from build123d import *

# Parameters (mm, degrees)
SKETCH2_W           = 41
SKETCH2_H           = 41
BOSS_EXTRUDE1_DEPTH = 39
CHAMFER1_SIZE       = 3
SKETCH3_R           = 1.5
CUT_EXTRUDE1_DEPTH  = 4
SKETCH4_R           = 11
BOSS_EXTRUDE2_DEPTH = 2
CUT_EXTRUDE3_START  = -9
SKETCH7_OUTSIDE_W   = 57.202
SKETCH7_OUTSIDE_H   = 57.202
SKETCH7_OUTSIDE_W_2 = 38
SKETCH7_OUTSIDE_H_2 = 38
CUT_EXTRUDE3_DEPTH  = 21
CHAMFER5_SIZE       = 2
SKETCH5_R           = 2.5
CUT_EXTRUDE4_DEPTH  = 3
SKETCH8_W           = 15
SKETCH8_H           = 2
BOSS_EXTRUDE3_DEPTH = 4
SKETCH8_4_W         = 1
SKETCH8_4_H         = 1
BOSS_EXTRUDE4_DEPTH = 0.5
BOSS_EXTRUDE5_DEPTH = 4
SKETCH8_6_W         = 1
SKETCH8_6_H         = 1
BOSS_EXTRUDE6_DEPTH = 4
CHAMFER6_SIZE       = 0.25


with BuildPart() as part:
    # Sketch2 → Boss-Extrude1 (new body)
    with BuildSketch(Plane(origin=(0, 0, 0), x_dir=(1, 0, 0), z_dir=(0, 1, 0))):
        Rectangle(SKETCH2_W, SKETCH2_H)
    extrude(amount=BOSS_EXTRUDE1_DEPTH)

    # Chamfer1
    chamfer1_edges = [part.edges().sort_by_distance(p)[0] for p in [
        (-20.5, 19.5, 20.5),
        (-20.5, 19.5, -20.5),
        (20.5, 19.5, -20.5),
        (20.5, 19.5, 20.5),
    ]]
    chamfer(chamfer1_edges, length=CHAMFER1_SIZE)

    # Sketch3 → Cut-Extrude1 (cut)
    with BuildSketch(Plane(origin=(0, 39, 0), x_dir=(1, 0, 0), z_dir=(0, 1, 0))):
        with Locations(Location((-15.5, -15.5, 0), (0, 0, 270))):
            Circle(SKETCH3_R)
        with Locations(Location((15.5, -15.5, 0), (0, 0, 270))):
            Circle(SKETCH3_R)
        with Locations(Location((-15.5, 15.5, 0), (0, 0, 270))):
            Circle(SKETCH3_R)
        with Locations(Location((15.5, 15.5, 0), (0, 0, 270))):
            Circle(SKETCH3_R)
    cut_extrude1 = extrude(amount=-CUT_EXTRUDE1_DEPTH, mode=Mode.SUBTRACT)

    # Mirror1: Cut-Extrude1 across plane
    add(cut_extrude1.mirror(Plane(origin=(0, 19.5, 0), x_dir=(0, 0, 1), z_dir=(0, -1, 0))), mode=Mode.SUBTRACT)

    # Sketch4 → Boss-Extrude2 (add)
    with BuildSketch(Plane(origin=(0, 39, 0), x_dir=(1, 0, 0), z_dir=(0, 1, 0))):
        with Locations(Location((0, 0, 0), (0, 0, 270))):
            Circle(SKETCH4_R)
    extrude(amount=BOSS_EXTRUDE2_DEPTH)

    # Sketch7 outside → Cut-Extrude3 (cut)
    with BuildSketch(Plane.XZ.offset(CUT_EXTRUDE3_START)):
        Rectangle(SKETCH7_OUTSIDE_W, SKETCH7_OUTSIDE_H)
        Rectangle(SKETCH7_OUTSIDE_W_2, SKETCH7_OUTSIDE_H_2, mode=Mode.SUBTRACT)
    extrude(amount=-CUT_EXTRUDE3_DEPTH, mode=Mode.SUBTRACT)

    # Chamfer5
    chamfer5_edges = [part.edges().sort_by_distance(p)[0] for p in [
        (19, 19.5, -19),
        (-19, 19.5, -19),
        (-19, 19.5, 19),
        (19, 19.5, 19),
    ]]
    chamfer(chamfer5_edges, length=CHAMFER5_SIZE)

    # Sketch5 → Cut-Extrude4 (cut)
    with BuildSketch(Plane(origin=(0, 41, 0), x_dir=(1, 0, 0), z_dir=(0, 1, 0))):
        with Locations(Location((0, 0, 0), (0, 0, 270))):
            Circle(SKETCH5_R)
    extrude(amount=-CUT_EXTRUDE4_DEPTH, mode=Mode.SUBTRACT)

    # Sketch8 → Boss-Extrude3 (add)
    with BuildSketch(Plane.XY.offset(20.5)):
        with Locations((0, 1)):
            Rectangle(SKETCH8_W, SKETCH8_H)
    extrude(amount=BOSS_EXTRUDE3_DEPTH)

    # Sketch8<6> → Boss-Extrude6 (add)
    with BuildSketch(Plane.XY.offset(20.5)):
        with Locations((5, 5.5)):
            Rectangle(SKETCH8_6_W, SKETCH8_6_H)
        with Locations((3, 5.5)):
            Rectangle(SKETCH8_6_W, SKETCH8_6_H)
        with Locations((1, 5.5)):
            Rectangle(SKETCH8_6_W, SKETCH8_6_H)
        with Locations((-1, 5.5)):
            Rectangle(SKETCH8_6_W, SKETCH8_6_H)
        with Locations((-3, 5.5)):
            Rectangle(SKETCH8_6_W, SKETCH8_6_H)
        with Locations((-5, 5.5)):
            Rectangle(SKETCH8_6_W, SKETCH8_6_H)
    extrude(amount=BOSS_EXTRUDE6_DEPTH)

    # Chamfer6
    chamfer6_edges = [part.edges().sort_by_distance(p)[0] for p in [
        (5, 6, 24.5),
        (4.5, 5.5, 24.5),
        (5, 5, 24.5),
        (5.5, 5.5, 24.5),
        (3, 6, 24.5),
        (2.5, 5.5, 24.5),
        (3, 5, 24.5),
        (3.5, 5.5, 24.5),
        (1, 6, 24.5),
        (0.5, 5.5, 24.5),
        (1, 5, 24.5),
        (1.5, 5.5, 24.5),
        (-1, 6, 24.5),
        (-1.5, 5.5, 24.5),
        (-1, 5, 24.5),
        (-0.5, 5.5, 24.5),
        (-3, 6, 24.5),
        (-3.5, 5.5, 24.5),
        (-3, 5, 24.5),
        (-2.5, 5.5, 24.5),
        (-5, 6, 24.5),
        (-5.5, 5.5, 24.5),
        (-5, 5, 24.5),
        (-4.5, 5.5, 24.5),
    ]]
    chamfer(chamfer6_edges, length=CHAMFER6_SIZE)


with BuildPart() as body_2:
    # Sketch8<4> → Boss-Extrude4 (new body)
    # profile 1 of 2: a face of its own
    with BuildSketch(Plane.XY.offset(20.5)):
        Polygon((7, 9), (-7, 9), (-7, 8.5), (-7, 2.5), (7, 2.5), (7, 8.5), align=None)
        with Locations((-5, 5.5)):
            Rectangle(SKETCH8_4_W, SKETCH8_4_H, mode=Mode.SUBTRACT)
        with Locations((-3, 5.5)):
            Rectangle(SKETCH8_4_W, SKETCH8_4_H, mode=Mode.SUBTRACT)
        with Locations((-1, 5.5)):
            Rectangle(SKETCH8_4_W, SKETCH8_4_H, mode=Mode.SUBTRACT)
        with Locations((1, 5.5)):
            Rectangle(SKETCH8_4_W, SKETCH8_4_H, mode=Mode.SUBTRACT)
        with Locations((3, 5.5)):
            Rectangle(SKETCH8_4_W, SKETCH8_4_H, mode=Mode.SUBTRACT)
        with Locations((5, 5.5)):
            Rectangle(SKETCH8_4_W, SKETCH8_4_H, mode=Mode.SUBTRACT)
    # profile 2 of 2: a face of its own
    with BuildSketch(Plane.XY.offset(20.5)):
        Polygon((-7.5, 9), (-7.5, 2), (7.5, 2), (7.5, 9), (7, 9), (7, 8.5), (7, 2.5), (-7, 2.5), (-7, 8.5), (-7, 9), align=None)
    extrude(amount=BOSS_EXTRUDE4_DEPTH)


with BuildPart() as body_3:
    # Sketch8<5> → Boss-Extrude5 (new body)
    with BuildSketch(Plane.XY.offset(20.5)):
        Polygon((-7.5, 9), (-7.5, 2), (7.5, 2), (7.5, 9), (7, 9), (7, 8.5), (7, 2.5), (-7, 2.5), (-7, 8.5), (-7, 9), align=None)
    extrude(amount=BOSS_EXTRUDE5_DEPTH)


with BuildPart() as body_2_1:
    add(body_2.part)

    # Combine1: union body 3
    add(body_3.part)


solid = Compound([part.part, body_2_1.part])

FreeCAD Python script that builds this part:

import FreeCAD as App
import Part
import Sketcher
Q = App.Units.Quantity


def edges_at(feature, points):
    """Names of the edges that pass closest to the given points."""
    edges = feature.Shape.Edges
    near = lambda p: min(range(len(edges)), key=lambda i: edges[i].distToShape(Part.Vertex(*p))[0])
    return sorted({f"Edge{near(p) + 1}" for p in points})

doc = App.newDocument("Part")
body = doc.addObject("PartDesign::Body", "Body")

# Sketch on XZ plane
sketch1 = body.newObject("Sketcher::SketchObject", "Sketch")
sketch1.AttachmentSupport = (doc.getObject("XZ_Plane"), [""])
sketch1.MapMode = "FlatFace"
sketch1.addGeometry([
    Part.LineSegment(App.Vector(-20.5, -20.5, 0), App.Vector(-20.5, 20.5, 0)),
    Part.LineSegment(App.Vector(-20.5, 20.5, 0), App.Vector(20.5, 20.5, 0)),
    Part.LineSegment(App.Vector(20.5, 20.5, 0), App.Vector(20.5, -20.5, 0)),
    Part.LineSegment(App.Vector(20.5, -20.5, 0), App.Vector(-20.5, -20.5, 0)),
], False)
sketch1.addConstraint([
    Sketcher.Constraint("Coincident", 0, 2, 1, 1),
    Sketcher.Constraint("Coincident", 1, 2, 2, 1),
    Sketcher.Constraint("Coincident", 2, 2, 3, 1),
    Sketcher.Constraint("Coincident", 3, 2, 0, 1),
    Sketcher.Constraint("Vertical", 0),
    Sketcher.Constraint("Horizontal", 1),
    Sketcher.Constraint("Vertical", 2),
    Sketcher.Constraint("Horizontal", 3),
    Sketcher.Constraint("Symmetric", 0, 2, 2, 2, -1, 1),
    Sketcher.Constraint("Equal", 3, 0),
    Sketcher.Constraint("DistanceX", 1, 1, 1, 2, Q("41 mm")),
])
pad1 = body.newObject("PartDesign::Pad", "Pad")
pad1.Profile = sketch1
pad1.Length = 39
pad1.Reversed = True
doc.recompute()

chamfer = body.newObject("PartDesign::Chamfer", "Chamfer")
chamfer.Base = (pad1, edges_at(pad1, [
    (-20.5, 19.5, 20.5),
    (-20.5, 19.5, -20.5),
    (20.5, 19.5, -20.5),
    (20.5, 19.5, 20.5),
]))
chamfer.Size = 3

# Sketch on XZ plane
sketch2 = body.newObject("Sketcher::SketchObject", "Sketch001")
sketch2.AttachmentSupport = (doc.getObject("XZ_Plane"), [""])
sketch2.MapMode = "FlatFace"
sketch2.AttachmentOffset = App.Placement(App.Vector(0, 0, -39), App.Rotation())
sketch2.addGeometry([
    Part.Circle(App.Vector(-15.5, 15.5, 0), App.Vector(0, 0, 1), 1.5),
    Part.Circle(App.Vector(15.5, 15.5, 0), App.Vector(0, 0, 1), 1.5),
    Part.Circle(App.Vector(-15.5, -15.5, 0), App.Vector(0, 0, 1), 1.5),
    Part.Circle(App.Vector(15.5, -15.5, 0), App.Vector(0, 0, 1), 1.5),
], False)
sketch2.addConstraint([
    Sketcher.Constraint("Equal", 0, 1),
    Sketcher.Constraint("Equal", 1, 2),
    Sketcher.Constraint("Equal", 2, 3),
    Sketcher.Constraint("Symmetric", 1, 3, 2, 3, -1, 1),
    Sketcher.Constraint("Symmetric", 0, 3, 3, 3, -1, 1),
    Sketcher.Constraint("Symmetric", 0, 3, 1, 3, -2),
    Sketcher.Constraint("Diameter", 0, Q("3 mm")),
    Sketcher.Constraint("DistanceX", 0, 3, 1, 3, Q("31 mm")),
    Sketcher.Constraint("DistanceY", 2, 3, 0, 3, Q("31 mm")),
])
pocket1 = body.newObject("PartDesign::Pocket", "Pocket")
pocket1.Profile = sketch2
pocket1.Length = 4
pocket1.Reversed = True
doc.recompute()

datumplane = body.newObject("PartDesign::Plane", "DatumPlane")
datumplane.AttachmentSupport = (doc.getObject("XZ_Plane"), [""])
datumplane.MapMode = "FlatFace"
datumplane.AttachmentOffset = App.Placement(App.Vector(0, 0, -19.5), App.Rotation())
mirrored = body.newObject("PartDesign::Mirrored", "Mirrored")
mirrored.Originals = [pocket1]
mirrored.MirrorPlane = (datumplane, [""])
body.Tip = mirrored

# Sketch on XZ plane
sketch3 = body.newObject("Sketcher::SketchObject", "Sketch002")
sketch3.AttachmentSupport = (doc.getObject("XZ_Plane"), [""])
sketch3.MapMode = "FlatFace"
sketch3.AttachmentOffset = App.Placement(App.Vector(0, 0, -39), App.Rotation())
sketch3.addGeometry(Part.Circle(App.Vector(0, 0, 0), App.Vector(0, 0, 1), 11), False)
sketch3.addConstraint([
    Sketcher.Constraint("Coincident", 0, 3, -1, 1),
    Sketcher.Constraint("Diameter", 0, Q("22 mm")),
])
pad2 = body.newObject("PartDesign::Pad", "Pad001")
pad2.Profile = sketch3
pad2.Length = 2
pad2.Reversed = True

# Sketch on XZ plane
sketch4 = body.newObject("Sketcher::SketchObject", "Sketch003")
sketch4.AttachmentSupport = (doc.getObject("XZ_Plane"), [""])
sketch4.MapMode = "FlatFace"
sketch4.AttachmentOffset = App.Placement(App.Vector(0, 0, -9), App.Rotation())
sketch4.addGeometry([
    Part.LineSegment(App.Vector(-28.601, 28.601, 0), App.Vector(-28.601, -28.601, 0)),  # 0
    Part.LineSegment(App.Vector(-28.601, -28.601, 0), App.Vector(28.601, -28.601, 0)),  # 1
    Part.LineSegment(App.Vector(28.601, -28.601, 0), App.Vector(28.601, 28.601, 0)),  # 2
    Part.LineSegment(App.Vector(28.601, 28.601, 0), App.Vector(-28.601, 28.601, 0)),  # 3
    Part.LineSegment(App.Vector(19, -19, 0), App.Vector(-19, -19, 0)),  # 4
    Part.LineSegment(App.Vector(-19, -19, 0), App.Vector(-19, 19, 0)),  # 5
    Part.LineSegment(App.Vector(-19, 19, 0), App.Vector(19, 19, 0)),  # 6
    Part.LineSegment(App.Vector(19, 19, 0), App.Vector(19, -19, 0)),  # 7
], False)
sketch4.addConstraint([
    Sketcher.Constraint("Coincident", 0, 2, 1, 1),
    Sketcher.Constraint("Coincident", 1, 2, 2, 1),
    Sketcher.Constraint("Coincident", 2, 2, 3, 1),
    Sketcher.Constraint("Coincident", 3, 2, 0, 1),
    Sketcher.Constraint("Coincident", 4, 2, 5, 1),
    Sketcher.Constraint("Coincident", 5, 2, 6, 1),
    Sketcher.Constraint("Coincident", 6, 2, 7, 1),
    Sketcher.Constraint("Coincident", 7, 2, 4, 1),
    Sketcher.Constraint("Vertical", 0),
    Sketcher.Constraint("Horizontal", 1),
    Sketcher.Constraint("Vertical", 2),
    Sketcher.Constraint("Horizontal", 3),
    Sketcher.Constraint("Horizontal", 4),
    Sketcher.Constraint("Vertical", 5),
    Sketcher.Constraint("Horizontal", 6),
    Sketcher.Constraint("Vertical", 7),
    Sketcher.Constraint("Symmetric", 0, 2, 2, 2, -1, 1),
    Sketcher.Constraint("Symmetric", 4, 2, 6, 2, -1, 1),
    Sketcher.Constraint("Equal", 3, 0),
    Sketcher.Constraint("Equal", 6, 5),
    Sketcher.Constraint("DistanceX", 4, 2, 4, 1, Q("38 mm")),
    Sketcher.Constraint("DistanceX", 1, 1, 1, 2, Q("57.202 mm")),
])
pocket2 = body.newObject("PartDesign::Pocket", "Pocket001")
pocket2.Profile = sketch4
pocket2.Length = 21
doc.recompute()

chamfer2 = body.newObject("PartDesign::Chamfer", "Chamfer001")
chamfer2.Base = (pocket2, edges_at(pocket2, [
    (19, 19.5, -19),
    (-19, 19.5, -19),
    (-19, 19.5, 19),
    (19, 19.5, 19),
]))
chamfer2.Size = 2

# Sketch on XZ plane
sketch5 = body.newObject("Sketcher::SketchObject", "Sketch004")
sketch5.AttachmentSupport = (doc.getObject("XZ_Plane"), [""])
sketch5.MapMode = "FlatFace"
sketch5.AttachmentOffset = App.Placement(App.Vector(0, 0, -41), App.Rotation())
sketch5.addGeometry(Part.Circle(App.Vector(0, 0, 0), App.Vector(0, 0, 1), 2.5), False)
sketch5.addConstraint([
    Sketcher.Constraint("Coincident", 0, 3, -1, 1),
    Sketcher.Constraint("Diameter", 0, Q("5 mm")),
])
pocket3 = body.newObject("PartDesign::Pocket", "Pocket002")
pocket3.Profile = sketch5
pocket3.Length = 3
pocket3.Reversed = True

# Sketch on XY plane
sketch6 = body.newObject("Sketcher::SketchObject", "Sketch005")
sketch6.AttachmentSupport = (doc.getObject("XY_Plane"), [""])
sketch6.MapMode = "FlatFace"
sketch6.AttachmentOffset = App.Placement(App.Vector(0, 0, 20.5), App.Rotation())
sketch6.addGeometry([
    Part.LineSegment(App.Vector(-7.5, 2, 0), App.Vector(-7.5, 0, 0)),
    Part.LineSegment(App.Vector(-7.5, 0, 0), App.Vector(7.5, 0, 0)),
    Part.LineSegment(App.Vector(7.5, 0, 0), App.Vector(7.5, 2, 0)),
    Part.LineSegment(App.Vector(7.5, 2, 0), App.Vector(-7.5, 2, 0)),
], False)
sketch6.addConstraint([
    Sketcher.Constraint("Coincident", 0, 2, 1, 1),
    Sketcher.Constraint("Coincident", 1, 2, 2, 1),
    Sketcher.Constraint("Coincident", 2, 2, 3, 1),
    Sketcher.Constraint("Coincident", 3, 2, 0, 1),
    Sketcher.Constraint("Vertical", 0),
    Sketcher.Constraint("Horizontal", 1),
    Sketcher.Constraint("Vertical", 2),
    Sketcher.Constraint("Horizontal", 3),
    Sketcher.Constraint("Symmetric", 0, 2, 1, 2, -1, 1),
    Sketcher.Constraint("DistanceX", 1, 1, 1, 2, Q("15 mm")),
    Sketcher.Constraint("DistanceY", 0, 2, 0, 1, Q("2 mm")),
])
pad3 = body.newObject("PartDesign::Pad", "Pad002")
pad3.Profile = sketch6
pad3.Length = 4

# Sketch on XY plane
sketch7 = body.newObject("Sketcher::SketchObject", "Sketch006")
sketch7.AttachmentSupport = (doc.getObject("XY_Plane"), [""])
sketch7.MapMode = "FlatFace"
sketch7.AttachmentOffset = App.Placement(App.Vector(0, 0, 20.5), App.Rotation())
sketch7.addGeometry([
    Part.LineSegment(App.Vector(4.5, 6, 0), App.Vector(4.5, 5, 0)),  # 0
    Part.LineSegment(App.Vector(4.5, 5, 0), App.Vector(5.5, 5, 0)),  # 1
    Part.LineSegment(App.Vector(5.5, 5, 0), App.Vector(5.5, 6, 0)),  # 2
    Part.LineSegment(App.Vector(5.5, 6, 0), App.Vector(4.5, 6, 0)),  # 3
    Part.LineSegment(App.Vector(2.5, 6, 0), App.Vector(2.5, 5, 0)),  # 4
    Part.LineSegment(App.Vector(2.5, 5, 0), App.Vector(3.5, 5, 0)),  # 5
    Part.LineSegment(App.Vector(3.5, 5, 0), App.Vector(3.5, 6, 0)),  # 6
    Part.LineSegment(App.Vector(3.5, 6, 0), App.Vector(2.5, 6, 0)),  # 7
    Part.LineSegment(App.Vector(0.5, 6, 0), App.Vector(0.5, 5, 0)),  # 8
    Part.LineSegment(App.Vector(0.5, 5, 0), App.Vector(1.5, 5, 0)),  # 9
    Part.LineSegment(App.Vector(1.5, 5, 0), App.Vector(1.5, 6, 0)),  # 10
    Part.LineSegment(App.Vector(1.5, 6, 0), App.Vector(0.5, 6, 0)),  # 11
    Part.LineSegment(App.Vector(-1.5, 6, 0), App.Vector(-1.5, 5, 0)),  # 12
    Part.LineSegment(App.Vector(-1.5, 5, 0), App.Vector(-0.5, 5, 0)),  # 13
    Part.LineSegment(App.Vector(-0.5, 5, 0), App.Vector(-0.5, 6, 0)),  # 14
    Part.LineSegment(App.Vector(-0.5, 6, 0), App.Vector(-1.5, 6, 0)),  # 15
    Part.LineSegment(App.Vector(-3.5, 6, 0), App.Vector(-3.5, 5, 0)),  # 16
    Part.LineSegment(App.Vector(-3.5, 5, 0), App.Vector(-2.5, 5, 0)),  # 17
    Part.LineSegment(App.Vector(-2.5, 5, 0), App.Vector(-2.5, 6, 0)),  # 18
    Part.LineSegment(App.Vector(-2.5, 6, 0), App.Vector(-3.5, 6, 0)),  # 19
    Part.LineSegment(App.Vector(-5.5, 6, 0), App.Vector(-5.5, 5, 0)),  # 20
    Part.LineSegment(App.Vector(-5.5, 5, 0), App.Vector(-4.5, 5, 0)),  # 21
    Part.LineSegment(App.Vector(-4.5, 5, 0), App.Vector(-4.5, 6, 0)),  # 22
    Part.LineSegment(App.Vector(-4.5, 6, 0), App.Vector(-5.5, 6, 0)),  # 23
], False)
sketch7.addConstraint([
    Sketcher.Constraint("Coincident", 0, 2, 1, 1),
    Sketcher.Constraint("Coincident", 1, 2, 2, 1),
    Sketcher.Constraint("Coincident", 2, 2, 3, 1),
    Sketcher.Constraint("Coincident", 3, 2, 0, 1),
    Sketcher.Constraint("Coincident", 4, 2, 5, 1),
    Sketcher.Constraint("Coincident", 5, 2, 6, 1),
    Sketcher.Constraint("Coincident", 6, 2, 7, 1),
    Sketcher.Constraint("Coincident", 7, 2, 4, 1),
    Sketcher.Constraint("Coincident", 8, 2, 9, 1),
    Sketcher.Constraint("Coincident", 9, 2, 10, 1),
    Sketcher.Constraint("Coincident", 10, 2, 11, 1),
    Sketcher.Constraint("Coincident", 11, 2, 8, 1),
    Sketcher.Constraint("Coincident", 12, 2, 13, 1),
    Sketcher.Constraint("Coincident", 13, 2, 14, 1),
    Sketcher.Constraint("Coincident", 14, 2, 15, 1),
    Sketcher.Constraint("Coincident", 15, 2, 12, 1),
    Sketcher.Constraint("Coincident", 16, 2, 17, 1),
    Sketcher.Constraint("Coincident", 17, 2, 18, 1),
    Sketcher.Constraint("Coincident", 18, 2, 19, 1),
    Sketcher.Constraint("Coincident", 19, 2, 16, 1),
    Sketcher.Constraint("Coincident", 20, 2, 21, 1),
    Sketcher.Constraint("Coincident", 21, 2, 22, 1),
    Sketcher.Constraint("Coincident", 22, 2, 23, 1),
    Sketcher.Constraint("Coincident", 23, 2, 20, 1),
    Sketcher.Constraint("Vertical", 0),
    Sketcher.Constraint("Horizontal", 1),
    Sketcher.Constraint("Vertical", 2),
    Sketcher.Constraint("Horizontal", 3),
    Sketcher.Constraint("Vertical", 4),
    Sketcher.Constraint("Horizontal", 5),
    Sketcher.Constraint("Vertical", 6),
    Sketcher.Constraint("Horizontal", 7),
    Sketcher.Constraint("Vertical", 8),
    Sketcher.Constraint("Horizontal", 9),
    Sketcher.Constraint("Vertical", 10),
    Sketcher.Constraint("Horizontal", 11),
    Sketcher.Constraint("Vertical", 12),
    Sketcher.Constraint("Horizontal", 13),
    Sketcher.Constraint("Vertical", 14),
    Sketcher.Constraint("Horizontal", 15),
    Sketcher.Constraint("Vertical", 16),
    Sketcher.Constraint("Horizontal", 17),
    Sketcher.Constraint("Vertical", 18),
    Sketcher.Constraint("Horizontal", 19),
    Sketcher.Constraint("Vertical", 20),
    Sketcher.Constraint("Horizontal", 21),
    Sketcher.Constraint("Vertical", 22),
    Sketcher.Constraint("Horizontal", 23),
    Sketcher.Constraint("Symmetric", 9, 2, 12, 2, -2),
    Sketcher.Constraint("Symmetric", 11, 2, 14, 2, -2),
    Sketcher.Constraint("Symmetric", 5, 2, 16, 2, -2),
    Sketcher.Constraint("Symmetric", 7, 2, 18, 2, -2),
    Sketcher.Constraint("Symmetric", 1, 2, 20, 2, -2),
    Sketcher.Constraint("Symmetric", 3, 2, 22, 2, -2),
    Sketcher.Constraint("Horizontal", 1, 2, 4, 2),
    Sketcher.Constraint("Horizontal", 3, 2, 6, 2),
    Sketcher.Constraint("Horizontal", 5, 2, 8, 2),
    Sketcher.Constraint("Horizontal", 7, 2, 10, 2),
    Sketcher.Constraint("Equal", 3, 5),
    Sketcher.Constraint("Equal", 7, 9),
    Sketcher.Constraint("Equal", 23, 0),
    Sketcher.Constraint("DistanceX", 1, 1, 1, 2, Q("1 mm")),
    Sketcher.Constraint("DistanceY", -1, 1, 0, 2, Q("5 mm")),
    Sketcher.Constraint("DistanceX", 4, 2, 0, 2, Q("2 mm")),
    Sketcher.Constraint("DistanceX", 8, 2, 4, 2, Q("2 mm")),
    Sketcher.Constraint("DistanceX", 12, 2, 8, 2, Q("2 mm")),
])
pad4 = body.newObject("PartDesign::Pad", "Pad003")
pad4.Profile = sketch7
pad4.Length = 4
doc.recompute()

chamfer3 = body.newObject("PartDesign::Chamfer", "Chamfer002")
chamfer3.Base = (pad4, edges_at(pad4, [
    (5, 6, 24.5),
    (4.5, 5.5, 24.5),
    (5, 5, 24.5),
    (5.5, 5.5, 24.5),
    (3, 6, 24.5),
    (2.5, 5.5, 24.5),
    (3, 5, 24.5),
    (3.5, 5.5, 24.5),
    (1, 6, 24.5),
    (0.5, 5.5, 24.5),
    (1, 5, 24.5),
    (1.5, 5.5, 24.5),
    (-1, 6, 24.5),
    (-1.5, 5.5, 24.5),
    (-1, 5, 24.5),
    (-0.5, 5.5, 24.5),
    (-3, 6, 24.5),
    (-3.5, 5.5, 24.5),
    (-3, 5, 24.5),
    (-2.5, 5.5, 24.5),
    (-5, 6, 24.5),
    (-5.5, 5.5, 24.5),
    (-5, 5, 24.5),
    (-4.5, 5.5, 24.5),
]))
chamfer3.Size = 0.25
body2 = doc.addObject("PartDesign::Body", "Body001")

# Sketch on XY plane
sketch8 = body2.newObject("Sketcher::SketchObject", "Sketch007")
sketch8.AttachmentSupport = (doc.getObject("XY_Plane001"), [""])
sketch8.MapMode = "FlatFace"
sketch8.AttachmentOffset = App.Placement(App.Vector(0, 0, 20.5), App.Rotation())
sketch8.addGeometry([
    Part.LineSegment(App.Vector(-7.5, 9, 0), App.Vector(-7.5, 2, 0)),  # 0
    Part.LineSegment(App.Vector(-7.5, 2, 0), App.Vector(7.5, 2, 0)),  # 1
    Part.LineSegment(App.Vector(7.5, 2, 0), App.Vector(7.5, 9, 0)),  # 2
    Part.LineSegment(App.Vector(7.5, 9, 0), App.Vector(-7.5, 9, 0)),  # 3
    Part.LineSegment(App.Vector(-4.5, 5, 0), App.Vector(-5.5, 5, 0)),  # 4
    Part.LineSegment(App.Vector(-5.5, 5, 0), App.Vector(-5.5, 6, 0)),  # 5
    Part.LineSegment(App.Vector(-5.5, 6, 0), App.Vector(-4.5, 6, 0)),  # 6
    Part.LineSegment(App.Vector(-4.5, 6, 0), App.Vector(-4.5, 5, 0)),  # 7
    Part.LineSegment(App.Vector(-2.5, 5, 0), App.Vector(-3.5, 5, 0)),  # 8
    Part.LineSegment(App.Vector(-3.5, 5, 0), App.Vector(-3.5, 6, 0)),  # 9
    Part.LineSegment(App.Vector(-3.5, 6, 0), App.Vector(-2.5, 6, 0)),  # 10
    Part.LineSegment(App.Vector(-2.5, 6, 0), App.Vector(-2.5, 5, 0)),  # 11
    Part.LineSegment(App.Vector(-0.5, 5, 0), App.Vector(-1.5, 5, 0)),  # 12
    Part.LineSegment(App.Vector(-1.5, 5, 0), App.Vector(-1.5, 6, 0)),  # 13
    Part.LineSegment(App.Vector(-1.5, 6, 0), App.Vector(-0.5, 6, 0)),  # 14
    Part.LineSegment(App.Vector(-0.5, 6, 0), App.Vector(-0.5, 5, 0)),  # 15
    Part.LineSegment(App.Vector(1.5, 5, 0), App.Vector(0.5, 5, 0)),  # 16
    Part.LineSegment(App.Vector(0.5, 5, 0), App.Vector(0.5, 6, 0)),  # 17
    Part.LineSegment(App.Vector(0.5, 6, 0), App.Vector(1.5, 6, 0)),  # 18
    Part.LineSegment(App.Vector(1.5, 6, 0), App.Vector(1.5, 5, 0)),  # 19
    Part.LineSegment(App.Vector(3.5, 5, 0), App.Vector(2.5, 5, 0)),  # 20
    Part.LineSegment(App.Vector(2.5, 5, 0), App.Vector(2.5, 6, 0)),  # 21
    Part.LineSegment(App.Vector(2.5, 6, 0), App.Vector(3.5, 6, 0)),  # 22
    Part.LineSegment(App.Vector(3.5, 6, 0), App.Vector(3.5, 5, 0)),  # 23
    Part.LineSegment(App.Vector(5.5, 5, 0), App.Vector(4.5, 5, 0)),  # 24
    Part.LineSegment(App.Vector(4.5, 5, 0), App.Vector(4.5, 6, 0)),  # 25
    Part.LineSegment(App.Vector(4.5, 6, 0), App.Vector(5.5, 6, 0)),  # 26
    Part.LineSegment(App.Vector(5.5, 6, 0), App.Vector(5.5, 5, 0)),  # 27
], False)
sketch8.addConstraint([
    Sketcher.Constraint("Coincident", 0, 2, 1, 1),
    Sketcher.Constraint("Coincident", 1, 2, 2, 1),
    Sketcher.Constraint("Coincident", 2, 2, 3, 1),
    Sketcher.Constraint("Coincident", 3, 2, 0, 1),
    Sketcher.Constraint("Coincident", 4, 2, 5, 1),
    Sketcher.Constraint("Coincident", 5, 2, 6, 1),
    Sketcher.Constraint("Coincident", 6, 2, 7, 1),
    Sketcher.Constraint("Coincident", 7, 2, 4, 1),
    Sketcher.Constraint("Coincident", 8, 2, 9, 1),
    Sketcher.Constraint("Coincident", 9, 2, 10, 1),
    Sketcher.Constraint("Coincident", 10, 2, 11, 1),
    Sketcher.Constraint("Coincident", 11, 2, 8, 1),
    Sketcher.Constraint("Coincident", 12, 2, 13, 1),
    Sketcher.Constraint("Coincident", 13, 2, 14, 1),
    Sketcher.Constraint("Coincident", 14, 2, 15, 1),
    Sketcher.Constraint("Coincident", 15, 2, 12, 1),
    Sketcher.Constraint("Coincident", 16, 2, 17, 1),
    Sketcher.Constraint("Coincident", 17, 2, 18, 1),
    Sketcher.Constraint("Coincident", 18, 2, 19, 1),
    Sketcher.Constraint("Coincident", 19, 2, 16, 1),
    Sketcher.Constraint("Coincident", 20, 2, 21, 1),
    Sketcher.Constraint("Coincident", 21, 2, 22, 1),
    Sketcher.Constraint("Coincident", 22, 2, 23, 1),
    Sketcher.Constraint("Coincident", 23, 2, 20, 1),
    Sketcher.Constraint("Coincident", 24, 2, 25, 1),
    Sketcher.Constraint("Coincident", 25, 2, 26, 1),
    Sketcher.Constraint("Coincident", 26, 2, 27, 1),
    Sketcher.Constraint("Coincident", 27, 2, 24, 1),
    Sketcher.Constraint("Vertical", 0),
    Sketcher.Constraint("Horizontal", 1),
    Sketcher.Constraint("Vertical", 2),
    Sketcher.Constraint("Horizontal", 3),
    Sketcher.Constraint("Horizontal", 4),
    Sketcher.Constraint("Vertical", 5),
    Sketcher.Constraint("Horizontal", 6),
    Sketcher.Constraint("Vertical", 7),
    Sketcher.Constraint("Horizontal", 8),
    Sketcher.Constraint("Vertical", 9),
    Sketcher.Constraint("Horizontal", 10),
    Sketcher.Constraint("Vertical", 11),
    Sketcher.Constraint("Horizontal", 12),
    Sketcher.Constraint("Vertical", 13),
    Sketcher.Constraint("Horizontal", 14),
    Sketcher.Constraint("Vertical", 15),
    Sketcher.Constraint("Horizontal", 16),
    Sketcher.Constraint("Vertical", 17),
    Sketcher.Constraint("Horizontal", 18),
    Sketcher.Constraint("Vertical", 19),
    Sketcher.Constraint("Horizontal", 20),
    Sketcher.Constraint("Vertical", 21),
    Sketcher.Constraint("Horizontal", 22),
    Sketcher.Constraint("Vertical", 23),
    Sketcher.Constraint("Horizontal", 24),
    Sketcher.Constraint("Vertical", 25),
    Sketcher.Constraint("Horizontal", 26),
    Sketcher.Constraint("Vertical", 27),
    Sketcher.Constraint("Symmetric", 15, 2, 16, 2, -2),
    Sketcher.Constraint("Symmetric", 13, 2, 18, 2, -2),
    Sketcher.Constraint("Symmetric", 11, 2, 20, 2, -2),
    Sketcher.Constraint("Symmetric", 9, 2, 22, 2, -2),
    Sketcher.Constraint("Symmetric", 7, 2, 24, 2, -2),
    Sketcher.Constraint("Symmetric", 5, 2, 26, 2, -2),
    Sketcher.Constraint("Horizontal", 7, 2, 8, 2),
    Sketcher.Constraint("Horizontal", 6, 2, 9, 2),
    Sketcher.Constraint("Horizontal", 11, 2, 12, 2),
    Sketcher.Constraint("Horizontal", 10, 2, 13, 2),
    Sketcher.Constraint("Equal", 6, 8),
    Sketcher.Constraint("Equal", 10, 12),
    Sketcher.Constraint("Equal", 26, 5),
    Sketcher.Constraint("DistanceX", 1, 1, 1, 2, Q("15 mm")),
    Sketcher.Constraint("DistanceX", 4, 2, 4, 1, Q("1 mm")),
    Sketcher.Constraint("DistanceY", 0, 2, 0, 1, Q("7 mm")),
    Sketcher.Constraint("DistanceY", -1, 1, 0, 2, Q("2 mm")),
    Sketcher.Constraint("DistanceY", -1, 1, 4, 2, Q("5 mm")),
    Sketcher.Constraint("DistanceX", 0, 2, 4, 2, Q("2 mm")),
    Sketcher.Constraint("DistanceX", 7, 2, 8, 2, Q("1 mm")),
    Sketcher.Constraint("DistanceX", 11, 2, 12, 2, Q("1 mm")),
    Sketcher.Constraint("DistanceX", 15, 2, 16, 2, Q("1 mm")),
])
pad5 = body2.newObject("PartDesign::Pad", "Pad004")
pad5.Profile = sketch8
pad5.Length = 0.5
body3 = doc.addObject("PartDesign::Body", "Body002")

# Sketch on XY plane
sketch9 = body3.newObject("Sketcher::SketchObject", "Sketch008")
sketch9.AttachmentSupport = (doc.getObject("XY_Plane002"), [""])
sketch9.MapMode = "FlatFace"
sketch9.AttachmentOffset = App.Placement(App.Vector(0, 0, 20.5), App.Rotation())
sketch9.addGeometry([
    Part.LineSegment(App.Vector(-7.5, 9, 0), App.Vector(-7.5, 2, 0)),  # 0
    Part.LineSegment(App.Vector(-7.5, 2, 0), App.Vector(7.5, 2, 0)),  # 1
    Part.LineSegment(App.Vector(7.5, 2, 0), App.Vector(7.5, 9, 0)),  # 2
    Part.LineSegment(App.Vector(7.5, 9, 0), App.Vector(7, 9, 0)),  # 3
    Part.LineSegment(App.Vector(7, 9, 0), App.Vector(7, 2.5, 0)),  # 4
    Part.LineSegment(App.Vector(7, 2.5, 0), App.Vector(-7, 2.5, 0)),  # 5
    Part.LineSegment(App.Vector(-7, 2.5, 0), App.Vector(-7, 9, 0)),  # 6
    Part.LineSegment(App.Vector(-7, 9, 0), App.Vector(-7.5, 9, 0)),  # 7
], False)
sketch9.addConstraint([
    Sketcher.Constraint("Coincident", 0, 2, 1, 1),
    Sketcher.Constraint("Coincident", 1, 2, 2, 1),
    Sketcher.Constraint("Coincident", 2, 2, 3, 1),
    Sketcher.Constraint("Coincident", 3, 2, 4, 1),
    Sketcher.Constraint("Coincident", 4, 2, 5, 1),
    Sketcher.Constraint("Coincident", 5, 2, 6, 1),
    Sketcher.Constraint("Coincident", 6, 2, 7, 1),
    Sketcher.Constraint("Coincident", 7, 2, 0, 1),
    Sketcher.Constraint("Vertical", 0),
    Sketcher.Constraint("Horizontal", 1),
    Sketcher.Constraint("Vertical", 2),
    Sketcher.Constraint("Horizontal", 3),
    Sketcher.Constraint("Vertical", 4),
    Sketcher.Constraint("Horizontal", 5),
    Sketcher.Constraint("Vertical", 6),
    Sketcher.Constraint("Horizontal", 7),
    Sketcher.Constraint("Symmetric", 3, 2, 6, 2, -2),
    Sketcher.Constraint("Equal", 3, 7),
    Sketcher.Constraint("DistanceX", 1, 1, 1, 2, Q("15 mm")),
    Sketcher.Constraint("DistanceX", 5, 2, 5, 1, Q("14 mm")),
    Sketcher.Constraint("DistanceY", 0, 2, 0, 1, Q("7 mm")),
    Sketcher.Constraint("DistanceY", 4, 2, 4, 1, Q("6.5 mm")),
    Sketcher.Constraint("DistanceY", -1, 1, 0, 2, Q("2 mm")),
])
pad6 = body3.newObject("PartDesign::Pad", "Pad005")
pad6.Profile = sketch9
pad6.Length = 4
doc.recompute()

boolean = body2.newObject("PartDesign::Boolean", "Boolean")
boolean.Type = "Fuse"
boolean.addObjects([body3])

doc.recompute()
